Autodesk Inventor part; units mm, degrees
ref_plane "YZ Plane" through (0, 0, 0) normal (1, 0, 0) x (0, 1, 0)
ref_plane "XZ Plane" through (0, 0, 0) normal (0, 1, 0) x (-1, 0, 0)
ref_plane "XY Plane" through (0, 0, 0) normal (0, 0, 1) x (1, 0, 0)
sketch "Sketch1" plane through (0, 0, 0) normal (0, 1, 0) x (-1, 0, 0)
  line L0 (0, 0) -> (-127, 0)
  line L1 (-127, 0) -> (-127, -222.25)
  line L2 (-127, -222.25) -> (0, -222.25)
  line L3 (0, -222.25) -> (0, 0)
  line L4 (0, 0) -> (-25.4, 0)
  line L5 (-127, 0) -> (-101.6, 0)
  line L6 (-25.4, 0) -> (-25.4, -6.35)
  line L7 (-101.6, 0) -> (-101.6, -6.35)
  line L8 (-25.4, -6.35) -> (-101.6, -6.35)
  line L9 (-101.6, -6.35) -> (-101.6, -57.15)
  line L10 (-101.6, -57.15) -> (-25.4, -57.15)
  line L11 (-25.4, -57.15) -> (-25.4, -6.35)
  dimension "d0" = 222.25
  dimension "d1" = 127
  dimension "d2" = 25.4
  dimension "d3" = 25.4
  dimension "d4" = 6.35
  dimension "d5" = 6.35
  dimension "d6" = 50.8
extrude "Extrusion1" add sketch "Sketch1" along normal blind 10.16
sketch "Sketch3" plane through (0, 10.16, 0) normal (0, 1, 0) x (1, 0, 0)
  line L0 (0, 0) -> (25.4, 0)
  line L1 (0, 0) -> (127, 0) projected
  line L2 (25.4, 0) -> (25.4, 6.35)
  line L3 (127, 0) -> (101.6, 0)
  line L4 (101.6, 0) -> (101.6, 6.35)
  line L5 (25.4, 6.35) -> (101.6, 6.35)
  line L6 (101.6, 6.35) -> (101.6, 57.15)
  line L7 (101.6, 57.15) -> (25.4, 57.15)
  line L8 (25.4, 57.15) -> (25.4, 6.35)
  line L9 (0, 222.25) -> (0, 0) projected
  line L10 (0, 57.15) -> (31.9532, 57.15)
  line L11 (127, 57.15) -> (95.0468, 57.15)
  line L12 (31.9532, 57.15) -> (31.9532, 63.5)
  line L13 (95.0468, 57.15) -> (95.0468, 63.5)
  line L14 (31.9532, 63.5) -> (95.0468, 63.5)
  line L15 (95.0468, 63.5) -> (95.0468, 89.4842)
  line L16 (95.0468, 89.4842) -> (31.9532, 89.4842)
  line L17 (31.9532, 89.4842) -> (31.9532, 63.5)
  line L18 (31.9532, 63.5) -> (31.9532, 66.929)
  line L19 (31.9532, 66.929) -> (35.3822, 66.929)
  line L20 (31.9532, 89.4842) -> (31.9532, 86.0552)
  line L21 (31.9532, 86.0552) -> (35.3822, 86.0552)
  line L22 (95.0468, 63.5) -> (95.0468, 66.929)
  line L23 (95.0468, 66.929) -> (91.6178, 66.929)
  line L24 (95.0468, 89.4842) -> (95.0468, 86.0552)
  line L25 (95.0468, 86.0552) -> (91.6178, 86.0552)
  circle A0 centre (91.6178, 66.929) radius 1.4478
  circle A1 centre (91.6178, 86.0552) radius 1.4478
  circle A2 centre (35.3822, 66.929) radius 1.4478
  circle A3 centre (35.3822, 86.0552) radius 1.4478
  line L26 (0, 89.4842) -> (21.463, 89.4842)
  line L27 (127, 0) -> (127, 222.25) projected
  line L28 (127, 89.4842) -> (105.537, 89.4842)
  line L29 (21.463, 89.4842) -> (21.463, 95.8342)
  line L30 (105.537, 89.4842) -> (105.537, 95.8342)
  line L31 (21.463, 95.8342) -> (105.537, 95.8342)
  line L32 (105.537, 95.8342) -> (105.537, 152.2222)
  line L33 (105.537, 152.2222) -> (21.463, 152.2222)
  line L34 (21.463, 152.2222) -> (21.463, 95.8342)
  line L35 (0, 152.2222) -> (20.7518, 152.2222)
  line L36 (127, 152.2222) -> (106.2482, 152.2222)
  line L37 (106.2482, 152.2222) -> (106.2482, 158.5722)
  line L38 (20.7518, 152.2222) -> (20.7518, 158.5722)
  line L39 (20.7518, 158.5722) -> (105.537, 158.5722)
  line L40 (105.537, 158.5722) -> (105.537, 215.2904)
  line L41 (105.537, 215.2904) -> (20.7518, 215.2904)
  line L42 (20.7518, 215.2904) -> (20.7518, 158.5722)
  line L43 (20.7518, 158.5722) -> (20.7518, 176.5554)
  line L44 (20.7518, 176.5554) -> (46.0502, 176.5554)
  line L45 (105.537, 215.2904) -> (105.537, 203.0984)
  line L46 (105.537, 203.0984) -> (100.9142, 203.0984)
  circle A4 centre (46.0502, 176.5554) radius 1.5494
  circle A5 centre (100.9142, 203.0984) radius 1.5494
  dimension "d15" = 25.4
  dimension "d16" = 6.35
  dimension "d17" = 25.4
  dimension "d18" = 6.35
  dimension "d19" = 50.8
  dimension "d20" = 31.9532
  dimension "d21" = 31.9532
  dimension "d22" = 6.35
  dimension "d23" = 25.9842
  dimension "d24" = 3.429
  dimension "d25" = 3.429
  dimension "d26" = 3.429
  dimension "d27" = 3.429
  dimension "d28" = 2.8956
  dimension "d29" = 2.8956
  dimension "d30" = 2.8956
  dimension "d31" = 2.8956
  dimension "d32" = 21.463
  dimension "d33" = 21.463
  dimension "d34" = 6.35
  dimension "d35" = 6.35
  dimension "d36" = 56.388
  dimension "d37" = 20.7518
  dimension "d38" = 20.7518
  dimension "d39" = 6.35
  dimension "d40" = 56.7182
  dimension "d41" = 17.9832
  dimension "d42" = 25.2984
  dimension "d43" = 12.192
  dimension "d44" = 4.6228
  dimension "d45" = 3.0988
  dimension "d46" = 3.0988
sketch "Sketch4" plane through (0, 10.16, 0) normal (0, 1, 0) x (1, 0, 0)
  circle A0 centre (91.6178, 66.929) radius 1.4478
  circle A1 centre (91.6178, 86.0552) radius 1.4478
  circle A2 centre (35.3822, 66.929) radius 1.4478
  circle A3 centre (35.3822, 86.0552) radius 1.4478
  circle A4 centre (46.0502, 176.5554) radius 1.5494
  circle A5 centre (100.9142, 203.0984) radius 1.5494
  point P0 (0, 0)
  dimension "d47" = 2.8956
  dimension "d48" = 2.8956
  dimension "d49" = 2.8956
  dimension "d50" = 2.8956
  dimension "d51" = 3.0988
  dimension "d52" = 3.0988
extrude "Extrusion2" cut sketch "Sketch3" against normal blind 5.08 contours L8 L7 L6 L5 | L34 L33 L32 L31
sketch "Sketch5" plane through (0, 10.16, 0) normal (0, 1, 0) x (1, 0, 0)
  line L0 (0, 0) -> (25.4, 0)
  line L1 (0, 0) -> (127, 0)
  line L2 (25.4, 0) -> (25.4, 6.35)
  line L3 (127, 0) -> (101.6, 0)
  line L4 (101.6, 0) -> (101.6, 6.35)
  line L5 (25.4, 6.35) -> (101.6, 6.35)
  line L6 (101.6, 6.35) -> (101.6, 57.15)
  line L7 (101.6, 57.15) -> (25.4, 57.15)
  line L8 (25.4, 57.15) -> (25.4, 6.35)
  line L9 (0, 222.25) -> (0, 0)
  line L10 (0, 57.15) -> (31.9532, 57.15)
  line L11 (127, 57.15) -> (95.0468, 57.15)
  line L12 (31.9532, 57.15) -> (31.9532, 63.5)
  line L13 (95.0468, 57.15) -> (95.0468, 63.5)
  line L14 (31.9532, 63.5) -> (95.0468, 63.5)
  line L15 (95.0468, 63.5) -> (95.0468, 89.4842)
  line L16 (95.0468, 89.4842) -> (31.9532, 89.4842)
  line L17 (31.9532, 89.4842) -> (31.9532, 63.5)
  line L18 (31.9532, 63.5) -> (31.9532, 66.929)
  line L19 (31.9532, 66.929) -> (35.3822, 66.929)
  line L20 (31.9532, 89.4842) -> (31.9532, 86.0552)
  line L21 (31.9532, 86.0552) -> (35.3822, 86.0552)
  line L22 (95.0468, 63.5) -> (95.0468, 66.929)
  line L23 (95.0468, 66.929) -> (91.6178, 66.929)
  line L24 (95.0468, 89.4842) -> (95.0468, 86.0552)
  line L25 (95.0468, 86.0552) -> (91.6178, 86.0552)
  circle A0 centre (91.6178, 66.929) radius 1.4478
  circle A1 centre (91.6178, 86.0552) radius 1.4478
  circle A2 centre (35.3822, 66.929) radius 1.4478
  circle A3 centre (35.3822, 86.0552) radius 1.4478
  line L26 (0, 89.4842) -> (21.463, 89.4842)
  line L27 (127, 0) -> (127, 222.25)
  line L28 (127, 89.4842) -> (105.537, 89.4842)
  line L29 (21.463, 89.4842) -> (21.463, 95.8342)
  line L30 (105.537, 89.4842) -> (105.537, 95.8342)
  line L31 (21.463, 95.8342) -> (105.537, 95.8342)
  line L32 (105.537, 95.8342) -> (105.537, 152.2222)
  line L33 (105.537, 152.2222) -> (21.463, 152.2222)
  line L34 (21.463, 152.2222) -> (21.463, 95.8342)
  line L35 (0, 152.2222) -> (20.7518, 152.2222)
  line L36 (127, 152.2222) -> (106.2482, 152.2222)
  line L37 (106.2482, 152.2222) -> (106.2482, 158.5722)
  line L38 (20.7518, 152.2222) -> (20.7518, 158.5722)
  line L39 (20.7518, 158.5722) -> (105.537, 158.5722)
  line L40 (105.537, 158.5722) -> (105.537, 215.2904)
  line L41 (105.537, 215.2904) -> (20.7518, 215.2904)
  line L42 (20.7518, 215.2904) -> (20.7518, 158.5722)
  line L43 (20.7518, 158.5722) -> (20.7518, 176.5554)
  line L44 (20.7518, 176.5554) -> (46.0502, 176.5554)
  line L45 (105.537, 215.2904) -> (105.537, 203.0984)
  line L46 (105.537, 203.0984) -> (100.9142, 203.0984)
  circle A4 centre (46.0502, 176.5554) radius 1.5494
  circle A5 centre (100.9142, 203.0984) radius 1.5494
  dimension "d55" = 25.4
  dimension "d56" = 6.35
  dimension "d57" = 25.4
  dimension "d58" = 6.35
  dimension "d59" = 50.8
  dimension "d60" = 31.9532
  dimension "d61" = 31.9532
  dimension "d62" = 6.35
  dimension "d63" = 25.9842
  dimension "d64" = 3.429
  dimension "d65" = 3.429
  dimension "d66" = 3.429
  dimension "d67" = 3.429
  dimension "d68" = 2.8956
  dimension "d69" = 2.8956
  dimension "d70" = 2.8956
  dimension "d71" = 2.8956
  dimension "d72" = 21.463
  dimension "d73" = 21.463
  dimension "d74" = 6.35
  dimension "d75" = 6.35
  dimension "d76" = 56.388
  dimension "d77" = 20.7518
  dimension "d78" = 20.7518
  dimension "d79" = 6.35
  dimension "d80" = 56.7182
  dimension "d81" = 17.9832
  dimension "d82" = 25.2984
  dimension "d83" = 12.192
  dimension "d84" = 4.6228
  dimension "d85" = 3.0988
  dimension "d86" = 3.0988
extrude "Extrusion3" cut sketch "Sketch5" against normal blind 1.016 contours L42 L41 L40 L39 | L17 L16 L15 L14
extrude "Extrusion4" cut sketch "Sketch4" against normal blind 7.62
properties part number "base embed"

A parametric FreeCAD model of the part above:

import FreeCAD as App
import Part
import Sketcher

V = App.Vector
Q = App.Units.Quantity


def add_polygon(sketch, points):
    """Adds a closed chain of lines whose ends are joined by coincident constraints."""
    first, n = sketch.GeometryCount, len(points)
    for a, b in zip(points, points[1:] + points[:1]):
        sketch.addGeometry(Part.LineSegment(App.Vector(*a, 0), App.Vector(*b, 0)), False)
    for i in range(n):
        sketch.addConstraint(Sketcher.Constraint("Coincident", first + i, 2, first + (i + 1) % n, 1))

doc = App.newDocument("Part")
body = doc.addObject("PartDesign::Body", "Body")

sketch1 = body.newObject("Sketcher::SketchObject", "Sketch")
sketch1.AttachmentSupport = (doc.getObject("XZ_Plane"), [""])
sketch1.MapMode = "FlatFace"
add_polygon(sketch1, [(0, -222), (0, 0), (127, 0), (127, -222)])
sketch1.addConstraint([
    Sketcher.Constraint("Vertical", 0),
    Sketcher.Constraint("Horizontal", 1),
    Sketcher.Constraint("Vertical", 2),
    Sketcher.Constraint("Horizontal", 3),
    Sketcher.Constraint("Coincident", 0, 2, -1, 1),
    Sketcher.Constraint("DistanceX", 1, 1, 1, 2, Q("5 in")),
    Sketcher.Constraint("DistanceY", 0, 1, 0, 2, Q("8.75 in")),
])
pad1 = body.newObject("PartDesign::Pad", "Pad")
pad1.Profile = sketch1
pad1.Length = Q("0.4 in")
pad1.Reversed = True

sketch2 = body.newObject("Sketcher::SketchObject", "Sketch001")
sketch2.AttachmentSupport = (doc.getObject("XZ_Plane"), [""])
sketch2.MapMode = "FlatFace"
sketch2.AttachmentOffset = App.Placement(V(0, 0, -0.4 * 25.4), App.Rotation())
add_polygon(sketch2, [(25, -57), (25, -6), (102, -6), (102, -57)])
add_polygon(sketch2, [(21, -152), (21, -96), (106, -96), (106, -152)])
sketch2.addConstraint([
    Sketcher.Constraint("Vertical", 0),
    Sketcher.Constraint("Horizontal", 1),
    Sketcher.Constraint("Vertical", 2),
    Sketcher.Constraint("Horizontal", 3),
    Sketcher.Constraint("Vertical", 4),
    Sketcher.Constraint("Horizontal", 5),
    Sketcher.Constraint("Vertical", 6),
    Sketcher.Constraint("Horizontal", 7),
    Sketcher.Constraint("DistanceY", 0, 1, 0, 2, Q("2 in")),
    Sketcher.Constraint("DistanceX", -1, 1, 0, 2, Q("1 in")),
    Sketcher.Constraint("DistanceY", 4, 1, 4, 2, Q("2.22 in")),
    Sketcher.Constraint("DistanceX", 1, 1, 1, 2, Q("3 in")),
    Sketcher.Constraint("DistanceY", 0, 2, -1, 1, Q("0.25 in")),
    Sketcher.Constraint("DistanceX", -1, 1, 4, 2, Q("0.845 in")),
    Sketcher.Constraint("DistanceX", 5, 1, 5, 2, Q("3.31 in")),
    Sketcher.Constraint("DistanceY", 4, 2, -1, 1, Q("3.773 in")),
])
pocket1 = body.newObject("PartDesign::Pocket", "Pocket")
pocket1.Profile = sketch2
pocket1.Length = Q("0.2 in")
pocket1.Reversed = True

sketch3 = body.newObject("Sketcher::SketchObject", "Sketch002")
sketch3.AttachmentSupport = (doc.getObject("XZ_Plane"), [""])
sketch3.MapMode = "FlatFace"
sketch3.AttachmentOffset = App.Placement(V(0, 0, -0.4 * 25.4), App.Rotation())
add_polygon(sketch3, [(20.8, -176.6), (20.8, -158.6), (105.5, -158.6), (105.5, -203.1), (105.5, -215.3), (20.8, -215.3)])
sketch3.addGeometry(Part.Circle(V(46.1, -176.6, 0), V(0, 0, 1), 1.5), False)
sketch3.addGeometry(Part.Circle(V(100.9, -203.1, 0), V(0, 0, 1), 1.5), False)
add_polygon(sketch3, [(32, -66.9), (32, -63.5), (95, -63.5), (95, -66.9), (95, -86.1), (95, -89.5), (32, -89.5), (32, -86.1)])
sketch3.addGeometry(Part.Circle(V(35.4, -66.9, 0), V(0, 0, 1), 1.4), False)
sketch3.addGeometry(Part.Circle(V(35.4, -86.1, 0), V(0, 0, 1), 1.4), False)
sketch3.addGeometry(Part.Circle(V(91.6, -66.9, 0), V(0, 0, 1), 1.4), False)
sketch3.addGeometry(Part.Circle(V(91.6, -86.1, 0), V(0, 0, 1), 1.4), False)
sketch3.addConstraint([
    Sketcher.Constraint("Vertical", 0),
    Sketcher.Constraint("Horizontal", 1),
    Sketcher.Constraint("Vertical", 2),
    Sketcher.Constraint("Vertical", 3),
    Sketcher.Constraint("Horizontal", 4),
    Sketcher.Constraint("Vertical", 5),
    Sketcher.Constraint("Vertical", 8),
    Sketcher.Constraint("Horizontal", 9),
    Sketcher.Constraint("Vertical", 10),
    Sketcher.Constraint("Vertical", 11),
    Sketcher.Constraint("Vertical", 12),
    Sketcher.Constraint("Horizontal", 13),
    Sketcher.Constraint("Vertical", 14),
    Sketcher.Constraint("Vertical", 15),
    Sketcher.Constraint("Equal", 6, 7),
    Sketcher.Constraint("Equal", 16, 17),
    Sketcher.Constraint("Equal", 17, 18),
    Sketcher.Constraint("Equal", 18, 19),
    Sketcher.Constraint("Horizontal", 16, 3, 18, 3),
    Sketcher.Constraint("Horizontal", 17, 3, 19, 3),
    Sketcher.Constraint("Horizontal", 7, 3, 2, 2),
    Sketcher.Constraint("Horizontal", 6, 3, 5, 2),
    Sketcher.Constraint("Horizontal", 18, 3, 10, 2),
    Sketcher.Constraint("Horizontal", 19, 3, 11, 2),
    Sketcher.Constraint("Horizontal", 11, 2, 14, 2),
    Sketcher.Constraint("Horizontal", 10, 2, 15, 2),
    Sketcher.Constraint("Vertical", 16, 3, 17, 3),
    Sketcher.Constraint("Vertical", 18, 3, 19, 3),
    Sketcher.Constraint("Equal", 10, 12),
    Sketcher.Constraint("Diameter", 6, Q("0.122 in")),
    Sketcher.Constraint("Diameter", 16, Q("0.114 in")),
    Sketcher.Constraint("DistanceY", 3, 2, 3, 1, Q("0.48 in")),
    Sketcher.Constraint("DistanceY", 0, 1, 0, 2, Q("0.708 in")),
    Sketcher.Constraint("DistanceY", 8, 1, 8, 2, Q("0.135 in")),
    Sketcher.Constraint("DistanceX", -1, 1, 0, 2, Q("0.817 in")),
    Sketcher.Constraint("DistanceX", -1, 1, 8, 2, Q("1.258 in")),
    Sketcher.Constraint("DistanceX", 0, 2, 6, 3, Q("0.996 in")),
    Sketcher.Constraint("DistanceX", 7, 3, 1, 2, Q("0.182 in")),
    Sketcher.Constraint("DistanceY", 3, 2, 1, 2, Q("2.233 in")),
    Sketcher.Constraint("DistanceX", 8, 2, 16, 3, Q("0.135 in")),
    Sketcher.Constraint("DistanceX", 18, 3, 9, 2, Q("0.135 in")),
    Sketcher.Constraint("DistanceY", 12, 2, 9, 2, Q("1.023 in")),
    Sketcher.Constraint("DistanceY", 8, 2, -1, 1, Q("2.5 in")),
    Sketcher.Constraint("DistanceX", 1, 1, 1, 2, Q("3.338 in")),
    Sketcher.Constraint("DistanceX", 9, 1, 9, 2, Q("2.484 in")),
    Sketcher.Constraint("DistanceY", 6, 3, -1, 1, Q("6.951 in")),
])
pocket2 = body.newObject("PartDesign::Pocket", "Pocket001")
pocket2.Profile = sketch3
pocket2.Length = Q("0.04 in")
pocket2.Reversed = True

sketch4 = body.newObject("Sketcher::SketchObject", "Sketch003")
sketch4.AttachmentSupport = (doc.getObject("XZ_Plane"), [""])
sketch4.MapMode = "FlatFace"
sketch4.AttachmentOffset = App.Placement(V(0, 0, -0.4 * 25.4), App.Rotation())
sketch4.addGeometry([
    Part.Circle(V(91.6, -66.9, 0), V(0, 0, 1), 1.4),
    Part.Circle(V(91.6, -86.1, 0), V(0, 0, 1), 1.4),
    Part.Circle(V(35.4, -66.9, 0), V(0, 0, 1), 1.4),
    Part.Circle(V(35.4, -86.1, 0), V(0, 0, 1), 1.4),
    Part.Circle(V(46.1, -176.6, 0), V(0, 0, 1), 1.5),
    Part.Circle(V(100.9, -203.1, 0), V(0, 0, 1), 1.5),
], False)
sketch4.addConstraint([
    Sketcher.Constraint("Equal", 0, 1),
    Sketcher.Constraint("Equal", 1, 2),
    Sketcher.Constraint("Equal", 2, 3),
    Sketcher.Constraint("Equal", 4, 5),
    Sketcher.Constraint("Horizontal", 0, 3, 2, 3),
    Sketcher.Constraint("Horizontal", 1, 3, 3, 3),
    Sketcher.Constraint("Vertical", 0, 3, 1, 3),
    Sketcher.Constraint("Vertical", 2, 3, 3, 3),
    Sketcher.Constraint("Diameter", 0, Q("0.114 in")),
    Sketcher.Constraint("Diameter", 4, Q("0.122 in")),
    Sketcher.Constraint("DistanceX", 3, 3, 4, 3, Q("0.42 in")),
    Sketcher.Constraint("DistanceX", 4, 3, 5, 3, Q("2.16 in")),
    Sketcher.Constraint("DistanceX", -1, 1, 0, 3, Q("3.607 in")),
    Sketcher.Constraint("DistanceY", 0, 3, -1, 1, Q("2.635 in")),
    Sketcher.Constraint("DistanceY", 1, 3, -1, 1, Q("3.388 in")),
    Sketcher.Constraint("DistanceX", -1, 1, 2, 3, Q("1.393 in")),
    Sketcher.Constraint("DistanceY", 4, 3, -1, 1, Q("6.951 in")),
    Sketcher.Constraint("DistanceY", 5, 3, -1, 1, Q("7.996 in")),
])
pocket3 = body.newObject("PartDesign::Pocket", "Pocket002")
pocket3.Profile = sketch4
pocket3.Length = Q("0.3 in")
pocket3.Reversed = True

doc.recompute()
